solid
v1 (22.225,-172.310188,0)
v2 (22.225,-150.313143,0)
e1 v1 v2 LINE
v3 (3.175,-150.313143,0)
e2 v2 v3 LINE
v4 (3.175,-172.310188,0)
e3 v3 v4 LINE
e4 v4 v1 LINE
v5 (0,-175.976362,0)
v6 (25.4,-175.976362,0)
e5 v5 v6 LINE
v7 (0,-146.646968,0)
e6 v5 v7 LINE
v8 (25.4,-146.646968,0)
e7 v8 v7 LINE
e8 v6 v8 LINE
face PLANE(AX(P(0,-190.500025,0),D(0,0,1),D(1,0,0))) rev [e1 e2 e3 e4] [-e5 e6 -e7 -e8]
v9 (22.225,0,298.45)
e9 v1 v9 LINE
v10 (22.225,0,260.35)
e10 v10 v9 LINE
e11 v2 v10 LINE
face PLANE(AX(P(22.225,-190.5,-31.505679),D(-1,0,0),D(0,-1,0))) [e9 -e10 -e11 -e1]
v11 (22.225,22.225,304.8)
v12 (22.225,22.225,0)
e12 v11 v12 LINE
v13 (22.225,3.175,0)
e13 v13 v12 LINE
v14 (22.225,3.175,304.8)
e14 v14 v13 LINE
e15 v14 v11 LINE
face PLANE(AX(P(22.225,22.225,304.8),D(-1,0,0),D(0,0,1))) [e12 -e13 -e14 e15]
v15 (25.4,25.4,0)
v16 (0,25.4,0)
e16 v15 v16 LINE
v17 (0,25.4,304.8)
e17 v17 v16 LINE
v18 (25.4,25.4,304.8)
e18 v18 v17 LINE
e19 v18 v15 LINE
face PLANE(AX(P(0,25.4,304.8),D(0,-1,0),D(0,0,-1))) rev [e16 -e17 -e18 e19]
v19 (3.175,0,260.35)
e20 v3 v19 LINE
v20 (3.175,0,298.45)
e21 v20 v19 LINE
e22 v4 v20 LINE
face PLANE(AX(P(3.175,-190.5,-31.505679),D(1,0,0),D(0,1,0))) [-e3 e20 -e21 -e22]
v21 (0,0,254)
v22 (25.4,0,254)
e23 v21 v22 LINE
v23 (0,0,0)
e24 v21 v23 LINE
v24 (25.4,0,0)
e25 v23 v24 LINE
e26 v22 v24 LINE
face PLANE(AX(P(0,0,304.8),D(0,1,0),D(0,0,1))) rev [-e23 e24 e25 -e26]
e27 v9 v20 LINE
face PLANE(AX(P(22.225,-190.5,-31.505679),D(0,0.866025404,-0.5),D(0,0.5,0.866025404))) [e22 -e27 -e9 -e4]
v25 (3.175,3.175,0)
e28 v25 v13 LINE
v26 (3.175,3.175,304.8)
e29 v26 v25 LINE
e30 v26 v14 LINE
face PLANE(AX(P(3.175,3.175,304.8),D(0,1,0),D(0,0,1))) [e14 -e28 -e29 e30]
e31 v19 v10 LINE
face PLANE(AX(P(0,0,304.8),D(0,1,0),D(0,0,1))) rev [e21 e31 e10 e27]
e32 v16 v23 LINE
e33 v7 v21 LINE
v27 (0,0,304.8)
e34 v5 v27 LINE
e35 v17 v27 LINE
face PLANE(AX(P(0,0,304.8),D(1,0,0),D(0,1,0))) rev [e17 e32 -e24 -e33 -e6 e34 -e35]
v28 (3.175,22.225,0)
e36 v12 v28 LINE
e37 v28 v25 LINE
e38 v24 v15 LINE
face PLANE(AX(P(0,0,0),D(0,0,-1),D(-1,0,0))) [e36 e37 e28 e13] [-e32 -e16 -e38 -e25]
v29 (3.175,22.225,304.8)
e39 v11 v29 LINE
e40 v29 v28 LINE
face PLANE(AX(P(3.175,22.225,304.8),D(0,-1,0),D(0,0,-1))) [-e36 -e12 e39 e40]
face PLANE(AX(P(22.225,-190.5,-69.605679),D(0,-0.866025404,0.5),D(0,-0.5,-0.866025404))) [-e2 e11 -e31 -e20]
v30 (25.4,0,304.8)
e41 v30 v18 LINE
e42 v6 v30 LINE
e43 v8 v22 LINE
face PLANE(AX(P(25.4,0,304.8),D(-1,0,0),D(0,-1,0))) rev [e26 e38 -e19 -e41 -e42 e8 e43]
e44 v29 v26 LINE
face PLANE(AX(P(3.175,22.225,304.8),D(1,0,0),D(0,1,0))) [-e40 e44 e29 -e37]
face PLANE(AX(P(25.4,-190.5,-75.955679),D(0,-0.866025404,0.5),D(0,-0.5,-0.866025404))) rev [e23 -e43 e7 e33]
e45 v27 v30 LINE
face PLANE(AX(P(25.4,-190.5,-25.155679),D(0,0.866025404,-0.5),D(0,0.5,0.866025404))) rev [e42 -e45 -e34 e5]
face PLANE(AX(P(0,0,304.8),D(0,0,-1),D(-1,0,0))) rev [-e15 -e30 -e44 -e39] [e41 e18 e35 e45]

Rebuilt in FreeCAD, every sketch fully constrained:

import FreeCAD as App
import Part
import Sketcher
from FreeCAD import Vector
Q = App.Units.Quantity


def add_polygon(sketch, points):
    """Adds a closed chain of lines whose ends are joined by coincident constraints."""
    first, n = sketch.GeometryCount, len(points)
    for a, b in zip(points, points[1:] + points[:1]):
        sketch.addGeometry(Part.LineSegment(App.Vector(*a, 0), App.Vector(*b, 0)), False)
    for i in range(n):
        sketch.addConstraint(Sketcher.Constraint("Coincident", first + i, 2, first + (i + 1) % n, 1))

doc = App.newDocument("Part")
params = doc.addObject("Spreadsheet::Sheet", "Params")
for row, (alias, value) in enumerate([
    ("sketch1_width", "1 in"),
    ("sketch1_width2", "0.75 in"),
    ("pad1_length", "12 in"),
    ("sketch2_width", "1 in"),
    ("sketch2_height", "2 in"),
    ("sketch2_height2", "1.5 in"),
    ("sketch2_width2", "0.75 in"),
    ("sketch3_width", "15 in"),
], start=1):
    params.set(f"A{row}", alias)
    params.set(f"B{row}", "=" + value)
    params.setAlias(f"B{row}", alias)

body = doc.addObject("PartDesign::Body", "Body")

# Sketch on XY plane
sketch1 = body.newObject("Sketcher::SketchObject", "Sketch")
sketch1.AttachmentSupport = (doc.getObject("XY_Plane"), [""])
sketch1.MapMode = "FlatFace"
add_polygon(sketch1, [(0, 25.4), (0, 0), (25.4, 0), (25.4, 25.4)])  # lines 0-3
add_polygon(sketch1, [(22.225, 3.175), (3.175, 3.175), (3.175, 22.225), (22.225, 22.225)])  # lines 4-7
sketch1.addConstraint(Sketcher.Constraint("Vertical", 0))
sketch1.addConstraint(Sketcher.Constraint("Horizontal", 1))
sketch1.addConstraint(Sketcher.Constraint("Vertical", 2))
sketch1.addConstraint(Sketcher.Constraint("Horizontal", 3))
sketch1.addConstraint(Sketcher.Constraint("Horizontal", 4))
sketch1.addConstraint(Sketcher.Constraint("Vertical", 5))
sketch1.addConstraint(Sketcher.Constraint("Horizontal", 6))
sketch1.addConstraint(Sketcher.Constraint("Vertical", 7))
sketch1.addConstraint(Sketcher.Constraint("Coincident", 0, 2, -1, 1))
sketch1.addConstraint(Sketcher.Constraint("Equal", 3, 0))
sketch1.addConstraint(Sketcher.Constraint("Equal", 6, 5))
sketch1.addConstraint(Sketcher.Constraint("DistanceX", 1, 1, 1, 2, Q("1 in")))
sketch1.addConstraint(Sketcher.Constraint("DistanceX", 4, 2, 4, 1, Q("0.75 in")))
sketch1.addConstraint(Sketcher.Constraint("DistanceX", -1, 1, 4, 2, Q("0.125 in")))
sketch1.addConstraint(Sketcher.Constraint("DistanceY", -1, 1, 4, 2, Q("0.125 in")))
sketch1.setExpression("Constraints[19]", "Params.sketch1_width")
sketch1.setExpression("Constraints[20]", "Params.sketch1_width2")
pad1 = body.newObject("PartDesign::Pad", "Pad")
pad1.Profile = sketch1
pad1.setExpression("Length", "Params.pad1_length")

# Sketch on XZ plane
sketch2 = body.newObject("Sketcher::SketchObject", "Sketch001")
sketch2.AttachmentSupport = (doc.getObject("XZ_Plane"), [""])
sketch2.MapMode = "FlatFace"
add_polygon(sketch2, [(0, 304.8), (0, 254), (25.4, 254), (25.4, 304.8)])  # lines 0-3
add_polygon(sketch2, [(22.225, 260.35), (3.175, 260.35), (3.175, 298.45), (22.225, 298.45)])  # lines 4-7
sketch2.addConstraint(Sketcher.Constraint("Vertical", 0))
sketch2.addConstraint(Sketcher.Constraint("Horizontal", 1))
sketch2.addConstraint(Sketcher.Constraint("Vertical", 2))
sketch2.addConstraint(Sketcher.Constraint("Horizontal", 3))
sketch2.addConstraint(Sketcher.Constraint("Horizontal", 4))
sketch2.addConstraint(Sketcher.Constraint("Vertical", 5))
sketch2.addConstraint(Sketcher.Constraint("Horizontal", 6))
sketch2.addConstraint(Sketcher.Constraint("Vertical", 7))
sketch2.addConstraint(Sketcher.Constraint("PointOnObject", 0, 2, -2))
sketch2.addConstraint(Sketcher.Constraint("DistanceX", 1, 1, 1, 2, Q("1 in")))
sketch2.addConstraint(Sketcher.Constraint("DistanceY", 0, 2, 0, 1, Q("2 in")))
sketch2.addConstraint(Sketcher.Constraint("DistanceY", 5, 1, 5, 2, Q("1.5 in")))
sketch2.addConstraint(Sketcher.Constraint("DistanceY", -1, 1, 0, 2, Q("10 in")))
sketch2.addConstraint(Sketcher.Constraint("DistanceX", 4, 2, 4, 1, Q("0.75 in")))
sketch2.addConstraint(Sketcher.Constraint("DistanceY", -1, 1, 4, 2, Q("10.25 in")))
sketch2.addConstraint(Sketcher.Constraint("DistanceX", -1, 1, 4, 2, Q("0.125 in")))
sketch2.setExpression("Constraints[17]", "Params.sketch2_width")
sketch2.setExpression("Constraints[18]", "Params.sketch2_height")
sketch2.setExpression("Constraints[19]", "Params.sketch2_height2")
sketch2.setExpression("Constraints[21]", "Params.sketch2_width2")

# Sketch on an angled plane
sketch3 = body.newObject("Sketcher::SketchObject", "Sketch002")
sketch3.Placement = App.Placement(Vector(0, -120.983749, 69.85), App.Rotation(Vector(0, -0.5, -0.866025404), Vector(1, 0, 0), Vector(0, -0.866025404, 0.5), "ZXY"))
sketch3.addGeometry(Part.LineSegment(Vector(-241.967498, 25.4, 0), Vector(139.032502, 25.4, 0)), False)
sketch3.addConstraint(Sketcher.Constraint("Horizontal", 0))
sketch3.addConstraint(Sketcher.Constraint("DistanceX", 0, 1, 0, 2, Q("15 in")))
sketch3.addConstraint(Sketcher.Constraint("DistanceY", -1, 1, 0, 1, Q("1 in")))
sketch3.addConstraint(Sketcher.Constraint("DistanceX", 0, 1, -1, 1, Q("241.967498 mm")))
sketch3.setExpression("Constraints[1]", "Params.sketch3_width")
doc.recompute()

additivepipe = body.newObject("PartDesign::AdditivePipe", "AdditivePipe")
additivepipe.Profile = sketch2
additivepipe.Spine = (sketch3, ["Edge1"])

# Sketch on XZ plane
sketch4 = body.newObject("Sketcher::SketchObject", "Sketch003")
sketch4.AttachmentSupport = (doc.getObject("XZ_Plane"), [""])
sketch4.MapMode = "FlatFace"
sketch4.AttachmentOffset = App.Placement(Vector(0, 0, -1 * 25.4), App.Rotation())
add_polygon(sketch4, [(0, -109.792847), (0, 0), (26.69011, 0), (26.69011, -109.792847)])  # lines 0-3
sketch4.addConstraint(Sketcher.Constraint("Vertical", 0))
sketch4.addConstraint(Sketcher.Constraint("Horizontal", 1))
sketch4.addConstraint(Sketcher.Constraint("Vertical", 2))
sketch4.addConstraint(Sketcher.Constraint("Horizontal", 3))
sketch4.addConstraint(Sketcher.Constraint("Coincident", 0, 2, -1, 1))
sketch4.addConstraint(Sketcher.Constraint("DistanceX", 1, 1, 1, 2, Q("26.69011 mm")))
sketch4.addConstraint(Sketcher.Constraint("DistanceY", 0, 1, 0, 2, Q("109.792847 mm")))
pocket1 = body.newObject("PartDesign::Pocket", "Pocket")
pocket1.Profile = sketch4
pocket1.Type = "ThroughAll"
pocket1.Reversed = True

doc.recompute()
